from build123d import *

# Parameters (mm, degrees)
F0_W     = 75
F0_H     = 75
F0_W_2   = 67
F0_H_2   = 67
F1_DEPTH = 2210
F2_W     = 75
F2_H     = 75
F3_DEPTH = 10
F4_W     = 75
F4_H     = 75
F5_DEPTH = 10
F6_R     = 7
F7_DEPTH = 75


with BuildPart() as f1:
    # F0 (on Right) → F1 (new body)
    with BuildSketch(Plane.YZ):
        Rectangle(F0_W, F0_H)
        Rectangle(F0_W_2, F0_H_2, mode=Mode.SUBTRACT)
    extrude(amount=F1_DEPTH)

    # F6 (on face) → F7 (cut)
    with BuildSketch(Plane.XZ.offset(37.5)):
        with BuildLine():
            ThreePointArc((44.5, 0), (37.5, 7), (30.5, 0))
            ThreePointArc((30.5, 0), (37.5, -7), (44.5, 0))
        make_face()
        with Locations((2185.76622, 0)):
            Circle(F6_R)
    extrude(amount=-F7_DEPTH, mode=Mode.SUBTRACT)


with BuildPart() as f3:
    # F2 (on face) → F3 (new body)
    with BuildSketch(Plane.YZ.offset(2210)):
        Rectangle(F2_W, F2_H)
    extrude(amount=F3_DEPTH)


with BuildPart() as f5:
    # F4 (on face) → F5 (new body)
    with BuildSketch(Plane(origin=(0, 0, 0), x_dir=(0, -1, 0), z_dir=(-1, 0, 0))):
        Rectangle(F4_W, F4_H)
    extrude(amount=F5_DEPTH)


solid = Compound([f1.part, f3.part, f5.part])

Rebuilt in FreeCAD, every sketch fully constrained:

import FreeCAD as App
import Part
import Sketcher

V = App.Vector
Q = App.Units.Quantity

doc = App.newDocument("Part")
body = doc.addObject("PartDesign::Body", "Body")

# Sketch on YZ plane
sketch1 = body.newObject("Sketcher::SketchObject", "Sketch")
sketch1.AttachmentSupport = (doc.getObject("YZ_Plane"), [""])
sketch1.MapMode = "FlatFace"
sketch1.addGeometry(Part.LineSegment(V(-38, 38, 0), V(-38, -38, 0)), False)
sketch1.addGeometry(Part.LineSegment(V(-38, -38, 0), V(38, -38, 0)), False)
sketch1.addGeometry(Part.LineSegment(V(38, -38, 0), V(38, 38, 0)), False)
sketch1.addGeometry(Part.LineSegment(V(38, 38, 0), V(-38, 38, 0)), False)
sketch1.addGeometry(Part.LineSegment(V(34, -34, 0), V(-34, -34, 0)), False)
sketch1.addGeometry(Part.LineSegment(V(-34, -34, 0), V(-34, 34, 0)), False)
sketch1.addGeometry(Part.LineSegment(V(-34, 34, 0), V(34, 34, 0)), False)
sketch1.addGeometry(Part.LineSegment(V(34, 34, 0), V(34, -34, 0)), False)
sketch1.addConstraint(Sketcher.Constraint("Coincident", 0, 2, 1, 1))
sketch1.addConstraint(Sketcher.Constraint("Coincident", 1, 2, 2, 1))
sketch1.addConstraint(Sketcher.Constraint("Coincident", 2, 2, 3, 1))
sketch1.addConstraint(Sketcher.Constraint("Coincident", 3, 2, 0, 1))
sketch1.addConstraint(Sketcher.Constraint("Coincident", 4, 2, 5, 1))
sketch1.addConstraint(Sketcher.Constraint("Coincident", 5, 2, 6, 1))
sketch1.addConstraint(Sketcher.Constraint("Coincident", 6, 2, 7, 1))
sketch1.addConstraint(Sketcher.Constraint("Coincident", 7, 2, 4, 1))
sketch1.addConstraint(Sketcher.Constraint("Vertical", 0))
sketch1.addConstraint(Sketcher.Constraint("Horizontal", 1))
sketch1.addConstraint(Sketcher.Constraint("Vertical", 2))
sketch1.addConstraint(Sketcher.Constraint("Horizontal", 3))
sketch1.addConstraint(Sketcher.Constraint("Horizontal", 4))
sketch1.addConstraint(Sketcher.Constraint("Vertical", 5))
sketch1.addConstraint(Sketcher.Constraint("Horizontal", 6))
sketch1.addConstraint(Sketcher.Constraint("Vertical", 7))
sketch1.addConstraint(Sketcher.Constraint("Symmetric", 0, 2, 2, 2, -1, 1))
sketch1.addConstraint(Sketcher.Constraint("Symmetric", 4, 2, 6, 2, -1, 1))
sketch1.addConstraint(Sketcher.Constraint("Equal", 3, 0))
sketch1.addConstraint(Sketcher.Constraint("Equal", 6, 5))
sketch1.addConstraint(Sketcher.Constraint("DistanceX", 1, 1, 1, 2, Q("75 mm")))
sketch1.addConstraint(Sketcher.Constraint("DistanceX", 4, 2, 4, 1, Q("67 mm")))
pad1 = body.newObject("PartDesign::Pad", "Pad")
pad1.Profile = sketch1
pad1.Length = 2210

# Sketch on XZ plane
sketch2 = body.newObject("Sketcher::SketchObject", "Sketch001")
sketch2.AttachmentSupport = (doc.getObject("XZ_Plane"), [""])
sketch2.MapMode = "FlatFace"
sketch2.AttachmentOffset = App.Placement(V(0, 0, 37.5), App.Rotation())
sketch2.addGeometry(Part.Circle(V(38, 0, 0), V(0, 0, 1), 7), False)
sketch2.addGeometry(Part.Circle(V(2186, 0, 0), V(0, 0, 1), 7), False)
sketch2.addConstraint(Sketcher.Constraint("Equal", 0, 1))
sketch2.addConstraint(Sketcher.Constraint("PointOnObject", 0, 3, -1))
sketch2.addConstraint(Sketcher.Constraint("PointOnObject", 1, 3, -1))
sketch2.addConstraint(Sketcher.Constraint("Diameter", 0, Q("14 mm")))
sketch2.addConstraint(Sketcher.Constraint("DistanceX", -1, 1, 0, 3, Q("37.5 mm")))
sketch2.addConstraint(Sketcher.Constraint("DistanceX", -1, 1, 1, 3, Q("2185.76622 mm")))
pocket1 = body.newObject("PartDesign::Pocket", "Pocket")
pocket1.Profile = sketch2
pocket1.Length = 75
body2 = doc.addObject("PartDesign::Body", "Body001")

# Sketch on YZ plane
sketch3 = body2.newObject("Sketcher::SketchObject", "Sketch002")
sketch3.AttachmentSupport = (doc.getObject("YZ_Plane001"), [""])
sketch3.MapMode = "FlatFace"
sketch3.AttachmentOffset = App.Placement(V(0, 0, 2210), App.Rotation())
sketch3.addGeometry(Part.LineSegment(V(-38, 38, 0), V(-38, -38, 0)), False)
sketch3.addGeometry(Part.LineSegment(V(-38, -38, 0), V(38, -38, 0)), False)
sketch3.addGeometry(Part.LineSegment(V(38, -38, 0), V(38, 38, 0)), False)
sketch3.addGeometry(Part.LineSegment(V(38, 38, 0), V(-38, 38, 0)), False)
sketch3.addConstraint(Sketcher.Constraint("Coincident", 0, 2, 1, 1))
sketch3.addConstraint(Sketcher.Constraint("Coincident", 1, 2, 2, 1))
sketch3.addConstraint(Sketcher.Constraint("Coincident", 2, 2, 3, 1))
sketch3.addConstraint(Sketcher.Constraint("Coincident", 3, 2, 0, 1))
sketch3.addConstraint(Sketcher.Constraint("Vertical", 0))
sketch3.addConstraint(Sketcher.Constraint("Horizontal", 1))
sketch3.addConstraint(Sketcher.Constraint("Vertical", 2))
sketch3.addConstraint(Sketcher.Constraint("Horizontal", 3))
sketch3.addConstraint(Sketcher.Constraint("Symmetric", 0, 2, 2, 2, -1, 1))
sketch3.addConstraint(Sketcher.Constraint("Equal", 3, 0))
sketch3.addConstraint(Sketcher.Constraint("DistanceX", 1, 1, 1, 2, Q("75 mm")))
pad2 = body2.newObject("PartDesign::Pad", "Pad001")
pad2.Profile = sketch3
pad2.Length = 10
body3 = doc.addObject("PartDesign::Body", "Body002")

# Sketch on YZ plane
sketch4 = body3.newObject("Sketcher::SketchObject", "Sketch003")
sketch4.AttachmentSupport = (doc.getObject("YZ_Plane002"), [""])
sketch4.MapMode = "FlatFace"
sketch4.addGeometry(Part.LineSegment(V(38, 38, 0), V(38, -38, 0)), False)
sketch4.addGeometry(Part.LineSegment(V(38, -38, 0), V(-38, -38, 0)), False)
sketch4.addGeometry(Part.LineSegment(V(-38, -38, 0), V(-38, 38, 0)), False)
sketch4.addGeometry(Part.LineSegment(V(-38, 38, 0), V(38, 38, 0)), False)
sketch4.addConstraint(Sketcher.Constraint("Coincident", 0, 2, 1, 1))
sketch4.addConstraint(Sketcher.Constraint("Coincident", 1, 2, 2, 1))
sketch4.addConstraint(Sketcher.Constraint("Coincident", 2, 2, 3, 1))
sketch4.addConstraint(Sketcher.Constraint("Coincident", 3, 2, 0, 1))
sketch4.addConstraint(Sketcher.Constraint("Vertical", 0))
sketch4.addConstraint(Sketcher.Constraint("Horizontal", 1))
sketch4.addConstraint(Sketcher.Constraint("Vertical", 2))
sketch4.addConstraint(Sketcher.Constraint("Horizontal", 3))
sketch4.addConstraint(Sketcher.Constraint("Symmetric", 0, 2, 2, 2, -1, 1))
sketch4.addConstraint(Sketcher.Constraint("Equal", 3, 0))
sketch4.addConstraint(Sketcher.Constraint("DistanceX", 1, 2, 1, 1, Q("75 mm")))
pad3 = body3.newObject("PartDesign::Pad", "Pad002")
pad3.Profile = sketch4
pad3.Length = 10
pad3.Reversed = True

doc.recompute()
